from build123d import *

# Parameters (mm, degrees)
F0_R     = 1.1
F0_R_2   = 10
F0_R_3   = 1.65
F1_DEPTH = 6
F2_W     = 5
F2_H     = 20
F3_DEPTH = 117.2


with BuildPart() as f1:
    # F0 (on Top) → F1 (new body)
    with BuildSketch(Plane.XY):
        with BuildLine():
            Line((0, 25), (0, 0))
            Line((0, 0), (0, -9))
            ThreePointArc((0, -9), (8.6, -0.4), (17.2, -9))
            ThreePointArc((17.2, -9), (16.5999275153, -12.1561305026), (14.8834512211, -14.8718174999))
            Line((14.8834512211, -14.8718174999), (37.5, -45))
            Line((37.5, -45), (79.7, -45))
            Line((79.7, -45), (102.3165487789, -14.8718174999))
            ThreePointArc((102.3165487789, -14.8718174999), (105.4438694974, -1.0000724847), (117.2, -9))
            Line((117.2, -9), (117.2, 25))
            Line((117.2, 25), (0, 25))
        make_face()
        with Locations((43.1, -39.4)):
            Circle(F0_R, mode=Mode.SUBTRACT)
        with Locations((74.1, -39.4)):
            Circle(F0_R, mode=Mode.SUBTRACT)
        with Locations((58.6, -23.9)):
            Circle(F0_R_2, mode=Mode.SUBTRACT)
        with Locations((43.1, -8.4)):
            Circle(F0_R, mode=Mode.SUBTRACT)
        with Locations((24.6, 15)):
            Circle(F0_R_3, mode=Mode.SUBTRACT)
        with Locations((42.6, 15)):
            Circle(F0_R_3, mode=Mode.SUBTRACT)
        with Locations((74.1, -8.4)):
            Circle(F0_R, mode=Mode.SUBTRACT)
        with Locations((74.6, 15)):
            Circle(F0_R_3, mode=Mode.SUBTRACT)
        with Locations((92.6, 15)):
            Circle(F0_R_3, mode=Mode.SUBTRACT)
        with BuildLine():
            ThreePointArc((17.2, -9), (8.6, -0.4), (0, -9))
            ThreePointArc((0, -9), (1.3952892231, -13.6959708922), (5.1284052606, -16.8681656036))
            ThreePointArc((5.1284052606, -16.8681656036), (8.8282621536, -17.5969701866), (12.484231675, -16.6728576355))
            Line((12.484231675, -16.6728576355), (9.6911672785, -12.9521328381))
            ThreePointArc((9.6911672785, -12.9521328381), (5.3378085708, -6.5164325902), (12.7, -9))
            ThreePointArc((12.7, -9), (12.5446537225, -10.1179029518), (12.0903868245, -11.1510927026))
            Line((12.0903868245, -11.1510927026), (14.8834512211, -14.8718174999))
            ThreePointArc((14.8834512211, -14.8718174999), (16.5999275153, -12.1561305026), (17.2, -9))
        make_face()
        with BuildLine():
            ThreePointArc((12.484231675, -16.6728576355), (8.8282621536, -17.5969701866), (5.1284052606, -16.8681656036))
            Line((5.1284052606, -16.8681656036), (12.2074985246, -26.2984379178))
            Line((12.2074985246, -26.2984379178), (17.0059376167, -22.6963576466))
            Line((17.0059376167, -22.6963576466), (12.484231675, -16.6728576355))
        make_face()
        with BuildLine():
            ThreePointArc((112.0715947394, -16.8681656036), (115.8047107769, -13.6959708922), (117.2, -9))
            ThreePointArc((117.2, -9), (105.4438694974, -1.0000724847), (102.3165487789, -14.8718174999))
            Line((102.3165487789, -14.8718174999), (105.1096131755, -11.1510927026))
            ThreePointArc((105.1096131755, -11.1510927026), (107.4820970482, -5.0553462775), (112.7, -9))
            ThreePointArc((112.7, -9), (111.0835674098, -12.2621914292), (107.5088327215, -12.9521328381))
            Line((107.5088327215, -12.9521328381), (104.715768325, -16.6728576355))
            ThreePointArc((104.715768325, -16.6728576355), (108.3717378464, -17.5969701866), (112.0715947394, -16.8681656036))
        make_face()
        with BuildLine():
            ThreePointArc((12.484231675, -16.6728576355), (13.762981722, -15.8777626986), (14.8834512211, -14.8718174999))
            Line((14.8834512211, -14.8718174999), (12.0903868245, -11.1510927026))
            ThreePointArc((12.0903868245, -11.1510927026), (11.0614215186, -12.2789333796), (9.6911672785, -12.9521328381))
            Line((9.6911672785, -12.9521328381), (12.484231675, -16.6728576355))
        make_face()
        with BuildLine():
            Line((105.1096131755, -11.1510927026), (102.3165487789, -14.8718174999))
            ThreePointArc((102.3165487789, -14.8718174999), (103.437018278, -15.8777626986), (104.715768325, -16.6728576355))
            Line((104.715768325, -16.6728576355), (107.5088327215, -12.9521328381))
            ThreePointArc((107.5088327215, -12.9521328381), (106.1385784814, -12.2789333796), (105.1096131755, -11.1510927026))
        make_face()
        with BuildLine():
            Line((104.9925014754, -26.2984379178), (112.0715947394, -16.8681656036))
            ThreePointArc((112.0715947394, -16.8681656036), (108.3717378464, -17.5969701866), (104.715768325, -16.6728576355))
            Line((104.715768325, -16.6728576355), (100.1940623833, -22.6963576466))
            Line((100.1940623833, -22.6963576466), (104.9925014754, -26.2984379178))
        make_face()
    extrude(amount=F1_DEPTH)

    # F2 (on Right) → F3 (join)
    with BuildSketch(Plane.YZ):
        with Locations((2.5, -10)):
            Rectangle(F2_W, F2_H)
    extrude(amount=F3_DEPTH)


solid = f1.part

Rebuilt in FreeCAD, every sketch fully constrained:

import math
import FreeCAD as App
import Part
import Sketcher


def add_polygon(sketch, points):
    """Adds a closed chain of lines whose ends are joined by coincident constraints."""
    first, n = sketch.GeometryCount, len(points)
    for a, b in zip(points, points[1:] + points[:1]):
        sketch.addGeometry(Part.LineSegment(App.Vector(*a, 0), App.Vector(*b, 0)), False)
    for i in range(n):
        sketch.addConstraint(Sketcher.Constraint("Coincident", first + i, 2, first + (i + 1) % n, 1))

doc = App.newDocument("Part")
body = doc.addObject("PartDesign::Body", "Body")

# Sketch on XY plane
sketch1 = body.newObject("Sketcher::SketchObject", "Sketch")
sketch1.AttachmentSupport = (doc.getObject("XY_Plane"), [""])
sketch1.MapMode = "FlatFace"
sketch1.addGeometry([
    Part.LineSegment(App.Vector(0, 25, 0), App.Vector(0, -9, 0)),  # 0
    Part.ArcOfCircle(Part.Circle(App.Vector(8.6, -9, 0), App.Vector(0, 0, 1), 8.6), math.radians(180), math.radians(246)),  # 1
    Part.LineSegment(App.Vector(5.1, -16.9, 0), App.Vector(12.2, -26.3, 0)),  # 2
    Part.LineSegment(App.Vector(12.2, -26.3, 0), App.Vector(17, -22.7, 0)),  # 3
    Part.LineSegment(App.Vector(17, -22.7, 0), App.Vector(12.5, -16.7, 0)),  # 4
    Part.ArcOfCircle(Part.Circle(App.Vector(8.6, -9, 0), App.Vector(0, 0, 1), 8.6), math.radians(-63), math.radians(-43)),  # 5
    Part.LineSegment(App.Vector(14.9, -14.9, 0), App.Vector(37.5, -45, 0)),  # 6
    Part.LineSegment(App.Vector(37.5, -45, 0), App.Vector(79.7, -45, 0)),  # 7
    Part.LineSegment(App.Vector(79.7, -45, 0), App.Vector(102.3, -14.9, 0)),  # 8
    Part.ArcOfCircle(Part.Circle(App.Vector(108.6, -9, 0), App.Vector(0, 0, 1), 8.6), math.radians(-137), math.radians(-117)),  # 9
    Part.LineSegment(App.Vector(104.7, -16.7, 0), App.Vector(100.2, -22.7, 0)),  # 10
    Part.LineSegment(App.Vector(100.2, -22.7, 0), App.Vector(105, -26.3, 0)),  # 11
    Part.LineSegment(App.Vector(105, -26.3, 0), App.Vector(112.1, -16.9, 0)),  # 12
    Part.ArcOfCircle(Part.Circle(App.Vector(108.6, -9, 0), App.Vector(0, 0, 1), 8.6), math.radians(-66), math.radians(0)),  # 13
    Part.LineSegment(App.Vector(117.2, -9, 0), App.Vector(117.2, 25, 0)),  # 14
    Part.LineSegment(App.Vector(117.2, 25, 0), App.Vector(0, 25, 0)),  # 15
    Part.ArcOfCircle(Part.Circle(App.Vector(108.6, -9, 0), App.Vector(0, 0, 1), 4.1), math.radians(0), math.radians(212)),  # 16
    Part.ArcOfCircle(Part.Circle(App.Vector(108.6, -9, 0), App.Vector(0, 0, 1), 4.1), math.radians(-105), math.radians(0)),  # 17
    Part.ArcOfCircle(Part.Circle(App.Vector(108.6, -9, 0), App.Vector(0, 0, 1), 4.1), math.radians(-148), math.radians(-105)),  # 18
    Part.ArcOfCircle(Part.Circle(App.Vector(8.6, -9, 0), App.Vector(0, 0, 1), 4.1), math.radians(0), math.radians(285)),  # 19
    Part.ArcOfCircle(Part.Circle(App.Vector(8.6, -9, 0), App.Vector(0, 0, 1), 4.1), math.radians(-32), math.radians(0)),  # 20
    Part.ArcOfCircle(Part.Circle(App.Vector(8.6, -9, 0), App.Vector(0, 0, 1), 4.1), math.radians(-75), math.radians(-32)),  # 21
    Part.Circle(App.Vector(43.1, -39.4, 0), App.Vector(0, 0, 1), 1.1),  # 22
    Part.Circle(App.Vector(74.1, -39.4, 0), App.Vector(0, 0, 1), 1.1),  # 23
    Part.Circle(App.Vector(58.6, -23.9, 0), App.Vector(0, 0, 1), 10),  # 24
    Part.Circle(App.Vector(43.1, -8.4, 0), App.Vector(0, 0, 1), 1.1),  # 25
    Part.Circle(App.Vector(24.6, 15, 0), App.Vector(0, 0, 1), 1.6),  # 26
    Part.Circle(App.Vector(42.6, 15, 0), App.Vector(0, 0, 1), 1.6),  # 27
    Part.Circle(App.Vector(74.1, -8.4, 0), App.Vector(0, 0, 1), 1.1),  # 28
    Part.Circle(App.Vector(74.6, 15, 0), App.Vector(0, 0, 1), 1.6),  # 29
    Part.Circle(App.Vector(92.6, 15, 0), App.Vector(0, 0, 1), 1.6),  # 30
], False)
sketch1.addConstraint([
    Sketcher.Constraint("Tangent", 0, 2, 1, 1),
    Sketcher.Constraint("Coincident", 1, 2, 2, 1),
    Sketcher.Constraint("Coincident", 2, 2, 3, 1),
    Sketcher.Constraint("Coincident", 3, 2, 4, 1),
    Sketcher.Constraint("Coincident", 4, 2, 5, 1),
    Sketcher.Constraint("Coincident", 5, 2, 6, 1),
    Sketcher.Constraint("Coincident", 6, 2, 7, 1),
    Sketcher.Constraint("Coincident", 7, 2, 8, 1),
    Sketcher.Constraint("Coincident", 8, 2, 9, 1),
    Sketcher.Constraint("Coincident", 9, 2, 10, 1),
    Sketcher.Constraint("Coincident", 10, 2, 11, 1),
    Sketcher.Constraint("Coincident", 11, 2, 12, 1),
    Sketcher.Constraint("Coincident", 12, 2, 13, 1),
    Sketcher.Constraint("Tangent", 13, 2, 14, 1),
    Sketcher.Constraint("Coincident", 14, 2, 15, 1),
    Sketcher.Constraint("Coincident", 15, 2, 0, 1),
    Sketcher.Constraint("Tangent", 16, 1, 17, 2),
    Sketcher.Constraint("Tangent", 17, 1, 18, 2),
    Sketcher.Constraint("Tangent", 18, 1, 16, 2),
    Sketcher.Constraint("Tangent", 19, 1, 20, 2),
    Sketcher.Constraint("Tangent", 20, 1, 21, 2),
    Sketcher.Constraint("Tangent", 21, 1, 19, 2),
    Sketcher.Constraint("Vertical", 0),
    Sketcher.Constraint("Horizontal", 7),
    Sketcher.Constraint("Vertical", 14),
    Sketcher.Constraint("Horizontal", 15),
    Sketcher.Constraint("Coincident", 5, 3, 1, 3),
    Sketcher.Constraint("Coincident", 13, 3, 9, 3),
    Sketcher.Constraint("Coincident", 16, 3, 9, 3),
    Sketcher.Constraint("Coincident", 19, 3, 1, 3),
    Sketcher.Constraint("Equal", 1, 5),
    Sketcher.Constraint("Equal", 5, 9),
    Sketcher.Constraint("Equal", 9, 13),
    Sketcher.Constraint("Equal", 18, 19),
    Sketcher.Constraint("Equal", 22, 23),
    Sketcher.Constraint("Equal", 23, 25),
    Sketcher.Constraint("Equal", 26, 27),
    Sketcher.Constraint("Equal", 25, 28),
    Sketcher.Constraint("Equal", 27, 29),
    Sketcher.Constraint("Equal", 29, 30),
    Sketcher.Constraint("PointOnObject", 0, 2, -2),
    Sketcher.Constraint("Perpendicular", 2, 3),
    Sketcher.Constraint("Perpendicular", 3, 4),
    Sketcher.Constraint("Parallel", 4, 6),
    Sketcher.Constraint("Parallel", 8, 10),
    Sketcher.Constraint("Perpendicular", 10, 11),
    Sketcher.Constraint("Perpendicular", 11, 12),
    Sketcher.Constraint("Horizontal", 5, 3, 9, 3),
    Sketcher.Constraint("Horizontal", 22, 3, 23, 3),
    Sketcher.Constraint("Horizontal", 26, 3, 27, 3),
    Sketcher.Constraint("Horizontal", 25, 3, 28, 3),
    Sketcher.Constraint("Horizontal", 27, 3, 29, 3),
    Sketcher.Constraint("Horizontal", 29, 3, 30, 3),
    Sketcher.Constraint("Horizontal", 5, 2, 8, 2),
    Sketcher.Constraint("Horizontal", 4, 2, 9, 2),
    Sketcher.Constraint("Horizontal", 3, 2, 10, 2),
    Sketcher.Constraint("Horizontal", 2, 2, 11, 2),
    Sketcher.Constraint("Horizontal", 1, 2, 12, 2),
    Sketcher.Constraint("Horizontal", 13, 2, 16, 1),
    Sketcher.Constraint("Horizontal", 16, 1, 19, 1),
    Sketcher.Constraint("Horizontal", 18, 1, 20, 1),
    Sketcher.Constraint("Horizontal", 17, 1, 21, 1),
    Sketcher.Constraint("Vertical", 22, 3, 25, 3),
    Sketcher.Constraint("Vertical", 23, 3, 28, 3),
    Sketcher.Constraint("Diameter", 24, 20.0),
    Sketcher.Constraint("Diameter", 22, 2.2),
    Sketcher.Constraint("Diameter", 26, 3.3),
    Sketcher.Constraint("Radius", 1, 8.6),
    Sketcher.Constraint("Radius", 16, 4.1),
    Sketcher.Constraint("DistanceY", 0, 2, 0, 1, 34.0),
    Sketcher.Constraint("Distance", 3, 6.0),
    Sketcher.Constraint("DistanceX", 7, 1, 7, 2, 42.2),
    Sketcher.Constraint("DistanceX", 15, 2, 15, 1, 117.2),
    Sketcher.Constraint("DistanceY", 1, 3, -1, 1, 9.0),
    Sketcher.Constraint("DistanceY", -1, 1, 26, 3, 15.0),
    Sketcher.Constraint("DistanceY", 6, 2, -1, 1, 45.0),
    Sketcher.Constraint("DistanceX", 22, 3, 23, 3, 31.0),
    Sketcher.Constraint("DistanceX", 20, 3, 24, 3, 50.0),
    Sketcher.Constraint("DistanceY", 22, 3, 25, 3, 31.0),
    Sketcher.Constraint("DistanceX", 20, 3, 26, 3, 16.0),
    Sketcher.Constraint("DistanceX", 26, 3, 27, 3, 18.0),
    Sketcher.Constraint("DistanceX", 27, 3, 29, 3, 32.0),
    Sketcher.Constraint("DistanceX", 29, 3, 30, 3, 18.0),
    Sketcher.Constraint("DistanceX", -1, 1, 22, 3, 43.1),
    Sketcher.Constraint("DistanceY", 22, 3, -1, 1, 39.4),
    Sketcher.Constraint("DistanceY", 24, 3, -1, 1, 23.9),
    Sketcher.Constraint("DistanceX", -1, 1, 2, 2, 12.207499),
    Sketcher.Constraint("DistanceY", 3, 2, 4, 2, 6.0235),
    Sketcher.Constraint("Distance", 6, 37.672479),
    Sketcher.Constraint("DistanceX", 18, 1, 17, 1, 2.39922),
    Sketcher.Constraint("DistanceY", 17, 1, 18, 1, 1.80104),
])
pad1 = body.newObject("PartDesign::Pad", "Pad")
pad1.Profile = sketch1
pad1.Length = 6

# Sketch on YZ plane
sketch2 = body.newObject("Sketcher::SketchObject", "Sketch001")
sketch2.AttachmentSupport = (doc.getObject("YZ_Plane"), [""])
sketch2.MapMode = "FlatFace"
add_polygon(sketch2, [(0, 0), (0, -20), (5, -20), (5, 0)])  # lines 0-3
sketch2.addConstraint([
    Sketcher.Constraint("Vertical", 0),
    Sketcher.Constraint("Horizontal", 1),
    Sketcher.Constraint("Vertical", 2),
    Sketcher.Constraint("Horizontal", 3),
    Sketcher.Constraint("Coincident", 3, 2, -1, 1),
    Sketcher.Constraint("DistanceX", 1, 1, 1, 2, 5.0),
    Sketcher.Constraint("DistanceY", 0, 2, 0, 1, 20.0),
])
pad2 = body.newObject("PartDesign::Pad", "Pad001")
pad2.Profile = sketch2
pad2.Length = 117.2

doc.recompute()
